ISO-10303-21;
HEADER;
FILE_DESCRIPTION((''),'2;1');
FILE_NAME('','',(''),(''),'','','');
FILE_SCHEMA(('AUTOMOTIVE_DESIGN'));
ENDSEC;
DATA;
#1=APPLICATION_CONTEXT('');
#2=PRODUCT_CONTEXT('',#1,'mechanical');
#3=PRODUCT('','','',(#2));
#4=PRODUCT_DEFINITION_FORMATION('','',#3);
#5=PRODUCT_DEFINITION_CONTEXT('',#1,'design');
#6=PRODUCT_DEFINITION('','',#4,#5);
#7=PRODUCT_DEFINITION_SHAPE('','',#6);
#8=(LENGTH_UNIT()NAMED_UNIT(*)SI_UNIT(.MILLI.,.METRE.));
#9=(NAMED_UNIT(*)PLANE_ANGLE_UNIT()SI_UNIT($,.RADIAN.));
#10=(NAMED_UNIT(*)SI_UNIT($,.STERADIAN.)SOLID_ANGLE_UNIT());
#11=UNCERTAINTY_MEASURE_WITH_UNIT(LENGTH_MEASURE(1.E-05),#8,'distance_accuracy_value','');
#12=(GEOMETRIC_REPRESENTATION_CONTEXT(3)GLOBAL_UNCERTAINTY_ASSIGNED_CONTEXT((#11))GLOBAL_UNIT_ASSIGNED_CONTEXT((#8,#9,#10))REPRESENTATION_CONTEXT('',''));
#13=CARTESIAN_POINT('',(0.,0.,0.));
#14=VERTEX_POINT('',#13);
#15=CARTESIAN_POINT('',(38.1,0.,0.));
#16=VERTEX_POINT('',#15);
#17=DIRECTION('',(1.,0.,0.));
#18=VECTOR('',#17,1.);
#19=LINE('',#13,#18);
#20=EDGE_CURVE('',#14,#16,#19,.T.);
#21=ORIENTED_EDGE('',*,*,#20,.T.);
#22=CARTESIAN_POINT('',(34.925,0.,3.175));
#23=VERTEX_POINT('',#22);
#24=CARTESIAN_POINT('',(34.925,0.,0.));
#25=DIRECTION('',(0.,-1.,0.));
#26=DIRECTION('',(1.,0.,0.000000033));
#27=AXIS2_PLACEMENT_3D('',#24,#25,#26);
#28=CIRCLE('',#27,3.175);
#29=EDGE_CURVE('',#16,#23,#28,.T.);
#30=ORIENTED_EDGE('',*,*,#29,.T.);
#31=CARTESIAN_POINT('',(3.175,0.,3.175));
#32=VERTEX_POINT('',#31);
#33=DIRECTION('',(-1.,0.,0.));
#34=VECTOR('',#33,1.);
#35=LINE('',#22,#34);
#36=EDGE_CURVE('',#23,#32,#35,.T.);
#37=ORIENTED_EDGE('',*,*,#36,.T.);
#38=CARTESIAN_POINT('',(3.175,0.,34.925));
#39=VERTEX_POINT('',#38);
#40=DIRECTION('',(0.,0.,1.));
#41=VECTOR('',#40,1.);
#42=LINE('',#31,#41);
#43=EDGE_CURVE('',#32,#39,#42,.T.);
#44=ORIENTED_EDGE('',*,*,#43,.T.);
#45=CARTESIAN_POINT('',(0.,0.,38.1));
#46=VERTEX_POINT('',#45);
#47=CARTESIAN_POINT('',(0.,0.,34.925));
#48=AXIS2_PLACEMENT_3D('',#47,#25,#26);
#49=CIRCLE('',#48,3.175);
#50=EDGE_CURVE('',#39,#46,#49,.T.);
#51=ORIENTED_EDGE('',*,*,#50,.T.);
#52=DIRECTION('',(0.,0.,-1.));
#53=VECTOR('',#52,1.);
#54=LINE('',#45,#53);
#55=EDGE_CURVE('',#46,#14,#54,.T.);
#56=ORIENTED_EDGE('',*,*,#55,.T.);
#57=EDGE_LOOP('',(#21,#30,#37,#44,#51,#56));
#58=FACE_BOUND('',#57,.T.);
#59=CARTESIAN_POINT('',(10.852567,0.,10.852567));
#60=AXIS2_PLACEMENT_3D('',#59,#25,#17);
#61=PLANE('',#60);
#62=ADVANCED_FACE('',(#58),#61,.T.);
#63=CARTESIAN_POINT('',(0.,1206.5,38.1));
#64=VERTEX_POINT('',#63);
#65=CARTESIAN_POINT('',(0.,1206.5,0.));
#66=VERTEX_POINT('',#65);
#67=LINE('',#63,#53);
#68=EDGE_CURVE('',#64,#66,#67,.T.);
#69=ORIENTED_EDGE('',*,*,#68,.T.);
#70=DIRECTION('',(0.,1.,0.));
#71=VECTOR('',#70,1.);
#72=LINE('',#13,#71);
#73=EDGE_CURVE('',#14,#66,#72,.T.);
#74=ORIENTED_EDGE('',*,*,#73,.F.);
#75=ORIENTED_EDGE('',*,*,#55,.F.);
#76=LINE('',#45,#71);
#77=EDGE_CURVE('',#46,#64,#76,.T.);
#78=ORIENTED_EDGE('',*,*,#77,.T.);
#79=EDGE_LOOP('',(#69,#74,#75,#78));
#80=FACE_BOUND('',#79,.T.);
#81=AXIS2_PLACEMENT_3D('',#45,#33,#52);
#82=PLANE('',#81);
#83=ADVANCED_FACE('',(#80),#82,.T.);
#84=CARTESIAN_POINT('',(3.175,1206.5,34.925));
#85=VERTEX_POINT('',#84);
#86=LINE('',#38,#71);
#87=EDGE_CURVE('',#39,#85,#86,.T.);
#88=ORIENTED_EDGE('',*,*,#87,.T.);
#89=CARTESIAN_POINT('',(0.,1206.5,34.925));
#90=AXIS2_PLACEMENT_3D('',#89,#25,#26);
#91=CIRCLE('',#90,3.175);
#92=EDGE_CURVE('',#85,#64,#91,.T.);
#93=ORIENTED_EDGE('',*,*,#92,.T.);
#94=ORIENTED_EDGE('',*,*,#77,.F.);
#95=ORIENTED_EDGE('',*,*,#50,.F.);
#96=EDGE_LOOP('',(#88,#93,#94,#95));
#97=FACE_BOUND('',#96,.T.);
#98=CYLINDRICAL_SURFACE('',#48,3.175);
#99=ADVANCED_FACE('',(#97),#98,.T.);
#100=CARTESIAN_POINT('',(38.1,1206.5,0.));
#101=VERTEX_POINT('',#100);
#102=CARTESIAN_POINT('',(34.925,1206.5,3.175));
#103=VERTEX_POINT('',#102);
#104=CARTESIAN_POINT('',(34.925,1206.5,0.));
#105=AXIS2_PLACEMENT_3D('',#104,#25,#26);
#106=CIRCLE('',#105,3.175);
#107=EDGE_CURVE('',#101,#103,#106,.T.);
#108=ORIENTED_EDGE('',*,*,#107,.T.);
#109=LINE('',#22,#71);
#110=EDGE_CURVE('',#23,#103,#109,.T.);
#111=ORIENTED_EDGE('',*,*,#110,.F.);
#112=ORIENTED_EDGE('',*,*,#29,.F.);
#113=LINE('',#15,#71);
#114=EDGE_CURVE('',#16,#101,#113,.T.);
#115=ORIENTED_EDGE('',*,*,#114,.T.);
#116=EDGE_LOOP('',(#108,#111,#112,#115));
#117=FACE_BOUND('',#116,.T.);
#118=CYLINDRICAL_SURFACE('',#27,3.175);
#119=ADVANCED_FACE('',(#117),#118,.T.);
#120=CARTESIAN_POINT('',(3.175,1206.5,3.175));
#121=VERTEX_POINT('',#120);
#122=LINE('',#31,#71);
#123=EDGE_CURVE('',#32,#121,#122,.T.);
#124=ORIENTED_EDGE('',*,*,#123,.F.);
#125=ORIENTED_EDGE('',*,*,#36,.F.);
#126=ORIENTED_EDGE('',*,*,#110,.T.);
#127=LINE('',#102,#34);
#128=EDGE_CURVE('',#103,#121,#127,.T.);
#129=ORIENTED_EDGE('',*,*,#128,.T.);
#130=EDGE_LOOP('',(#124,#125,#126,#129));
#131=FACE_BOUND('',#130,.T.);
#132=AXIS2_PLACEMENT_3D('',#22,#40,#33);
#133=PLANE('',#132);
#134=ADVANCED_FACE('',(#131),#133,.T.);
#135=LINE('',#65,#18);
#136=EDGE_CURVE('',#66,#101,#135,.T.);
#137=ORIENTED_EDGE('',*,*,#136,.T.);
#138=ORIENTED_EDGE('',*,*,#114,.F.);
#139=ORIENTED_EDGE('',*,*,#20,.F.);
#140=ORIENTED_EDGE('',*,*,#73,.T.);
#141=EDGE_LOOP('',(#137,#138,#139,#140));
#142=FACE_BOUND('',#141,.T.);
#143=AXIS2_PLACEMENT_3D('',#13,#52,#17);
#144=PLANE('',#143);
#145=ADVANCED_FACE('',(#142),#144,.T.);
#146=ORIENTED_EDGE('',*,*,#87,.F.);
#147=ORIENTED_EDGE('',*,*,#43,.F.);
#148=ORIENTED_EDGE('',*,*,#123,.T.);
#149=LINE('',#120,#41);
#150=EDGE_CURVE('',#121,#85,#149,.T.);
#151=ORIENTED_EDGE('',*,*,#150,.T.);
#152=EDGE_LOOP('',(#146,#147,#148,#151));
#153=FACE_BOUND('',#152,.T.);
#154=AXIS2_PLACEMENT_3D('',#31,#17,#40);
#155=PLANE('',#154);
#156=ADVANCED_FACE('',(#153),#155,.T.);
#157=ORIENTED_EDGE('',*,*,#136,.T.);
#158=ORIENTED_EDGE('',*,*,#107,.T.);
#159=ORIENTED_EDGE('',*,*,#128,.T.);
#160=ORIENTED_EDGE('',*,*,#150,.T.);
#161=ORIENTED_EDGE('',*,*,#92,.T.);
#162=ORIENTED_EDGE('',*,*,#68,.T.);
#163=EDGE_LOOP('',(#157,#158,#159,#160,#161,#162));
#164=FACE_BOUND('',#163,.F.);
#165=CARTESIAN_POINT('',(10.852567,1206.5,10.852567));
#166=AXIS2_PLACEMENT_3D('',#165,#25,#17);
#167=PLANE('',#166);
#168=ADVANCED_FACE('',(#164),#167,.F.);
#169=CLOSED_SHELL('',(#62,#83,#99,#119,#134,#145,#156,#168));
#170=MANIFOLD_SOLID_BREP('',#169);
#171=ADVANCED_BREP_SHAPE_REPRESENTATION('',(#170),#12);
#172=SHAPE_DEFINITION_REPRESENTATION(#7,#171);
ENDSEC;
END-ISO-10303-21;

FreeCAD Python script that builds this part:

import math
import FreeCAD as App
import Part
import Sketcher

V = App.Vector
Q = App.Units.Quantity

doc = App.newDocument("Part")
params = doc.addObject("Spreadsheet::Sheet", "Params")
for row, (alias, value) in enumerate([
    ("sketch1_width", "1.5 in"),
    ("sketch1_radius", "0.125 in"),
    ("pad1_length", "47.5 in"),
], start=1):
    params.set(f"A{row}", alias)
    params.set(f"B{row}", "=" + value)
    params.setAlias(f"B{row}", alias)

body = doc.addObject("PartDesign::Body", "Body")

sketch1 = body.newObject("Sketcher::SketchObject", "Sketch")
sketch1.AttachmentSupport = (doc.getObject("XZ_Plane"), [""])
sketch1.MapMode = "FlatFace"
sketch1.addGeometry(Part.LineSegment(V(0, 38.1, 0), V(0, 0, 0)), False)
sketch1.addGeometry(Part.LineSegment(V(0, 0, 0), V(38.1, 0, 0)), False)
sketch1.addGeometry(Part.ArcOfCircle(Part.Circle(V(34.925, 0, 0), V(0, 0, 1), 3.175), math.radians(0.000002), math.radians(89.999998)), False)
sketch1.addGeometry(Part.LineSegment(V(34.925, 3.175, 0), V(3.175, 3.175, 0)), False)
sketch1.addGeometry(Part.LineSegment(V(3.175, 3.175, 0), V(3.175, 34.925, 0)), False)
sketch1.addGeometry(Part.ArcOfCircle(Part.Circle(V(0, 34.925, 0), V(0, 0, 1), 3.175), math.radians(0.000002), math.radians(89.999998)), False)
sketch1.addConstraint(Sketcher.Constraint("Coincident", 0, 2, 1, 1))
sketch1.addConstraint(Sketcher.Constraint("Coincident", 1, 2, 2, 1))
sketch1.addConstraint(Sketcher.Constraint("Tangent", 2, 2, 3, 1))
sketch1.addConstraint(Sketcher.Constraint("Coincident", 3, 2, 4, 1))
sketch1.addConstraint(Sketcher.Constraint("Tangent", 4, 2, 5, 1))
sketch1.addConstraint(Sketcher.Constraint("Coincident", 5, 2, 0, 1))
sketch1.addConstraint(Sketcher.Constraint("Vertical", 0))
sketch1.addConstraint(Sketcher.Constraint("Horizontal", 1))
sketch1.addConstraint(Sketcher.Constraint("Horizontal", 3))
sketch1.addConstraint(Sketcher.Constraint("Vertical", 4))
sketch1.addConstraint(Sketcher.Constraint("Coincident", 0, 2, -1, 1))
sketch1.addConstraint(Sketcher.Constraint("Equal", 2, 5))
sketch1.addConstraint(Sketcher.Constraint("PointOnObject", 2, 3, -1))
sketch1.addConstraint(Sketcher.Constraint("PointOnObject", 5, 3, -2))
sketch1.addConstraint(Sketcher.Constraint("Equal", 1, 0))
sketch1.addConstraint(Sketcher.Constraint("DistanceX", 1, 1, 1, 2, Q("1.5 in")))
sketch1.addConstraint(Sketcher.Constraint("Radius", 2, Q("0.125 in")))
sketch1.setExpression("Constraints[15]", "Params.sketch1_width")
sketch1.setExpression("Constraints[16]", "Params.sketch1_radius")
pad1 = body.newObject("PartDesign::Pad", "Pad")
pad1.Profile = sketch1
pad1.setExpression("Length", "Params.pad1_length")
pad1.Reversed = True

doc.recompute()
